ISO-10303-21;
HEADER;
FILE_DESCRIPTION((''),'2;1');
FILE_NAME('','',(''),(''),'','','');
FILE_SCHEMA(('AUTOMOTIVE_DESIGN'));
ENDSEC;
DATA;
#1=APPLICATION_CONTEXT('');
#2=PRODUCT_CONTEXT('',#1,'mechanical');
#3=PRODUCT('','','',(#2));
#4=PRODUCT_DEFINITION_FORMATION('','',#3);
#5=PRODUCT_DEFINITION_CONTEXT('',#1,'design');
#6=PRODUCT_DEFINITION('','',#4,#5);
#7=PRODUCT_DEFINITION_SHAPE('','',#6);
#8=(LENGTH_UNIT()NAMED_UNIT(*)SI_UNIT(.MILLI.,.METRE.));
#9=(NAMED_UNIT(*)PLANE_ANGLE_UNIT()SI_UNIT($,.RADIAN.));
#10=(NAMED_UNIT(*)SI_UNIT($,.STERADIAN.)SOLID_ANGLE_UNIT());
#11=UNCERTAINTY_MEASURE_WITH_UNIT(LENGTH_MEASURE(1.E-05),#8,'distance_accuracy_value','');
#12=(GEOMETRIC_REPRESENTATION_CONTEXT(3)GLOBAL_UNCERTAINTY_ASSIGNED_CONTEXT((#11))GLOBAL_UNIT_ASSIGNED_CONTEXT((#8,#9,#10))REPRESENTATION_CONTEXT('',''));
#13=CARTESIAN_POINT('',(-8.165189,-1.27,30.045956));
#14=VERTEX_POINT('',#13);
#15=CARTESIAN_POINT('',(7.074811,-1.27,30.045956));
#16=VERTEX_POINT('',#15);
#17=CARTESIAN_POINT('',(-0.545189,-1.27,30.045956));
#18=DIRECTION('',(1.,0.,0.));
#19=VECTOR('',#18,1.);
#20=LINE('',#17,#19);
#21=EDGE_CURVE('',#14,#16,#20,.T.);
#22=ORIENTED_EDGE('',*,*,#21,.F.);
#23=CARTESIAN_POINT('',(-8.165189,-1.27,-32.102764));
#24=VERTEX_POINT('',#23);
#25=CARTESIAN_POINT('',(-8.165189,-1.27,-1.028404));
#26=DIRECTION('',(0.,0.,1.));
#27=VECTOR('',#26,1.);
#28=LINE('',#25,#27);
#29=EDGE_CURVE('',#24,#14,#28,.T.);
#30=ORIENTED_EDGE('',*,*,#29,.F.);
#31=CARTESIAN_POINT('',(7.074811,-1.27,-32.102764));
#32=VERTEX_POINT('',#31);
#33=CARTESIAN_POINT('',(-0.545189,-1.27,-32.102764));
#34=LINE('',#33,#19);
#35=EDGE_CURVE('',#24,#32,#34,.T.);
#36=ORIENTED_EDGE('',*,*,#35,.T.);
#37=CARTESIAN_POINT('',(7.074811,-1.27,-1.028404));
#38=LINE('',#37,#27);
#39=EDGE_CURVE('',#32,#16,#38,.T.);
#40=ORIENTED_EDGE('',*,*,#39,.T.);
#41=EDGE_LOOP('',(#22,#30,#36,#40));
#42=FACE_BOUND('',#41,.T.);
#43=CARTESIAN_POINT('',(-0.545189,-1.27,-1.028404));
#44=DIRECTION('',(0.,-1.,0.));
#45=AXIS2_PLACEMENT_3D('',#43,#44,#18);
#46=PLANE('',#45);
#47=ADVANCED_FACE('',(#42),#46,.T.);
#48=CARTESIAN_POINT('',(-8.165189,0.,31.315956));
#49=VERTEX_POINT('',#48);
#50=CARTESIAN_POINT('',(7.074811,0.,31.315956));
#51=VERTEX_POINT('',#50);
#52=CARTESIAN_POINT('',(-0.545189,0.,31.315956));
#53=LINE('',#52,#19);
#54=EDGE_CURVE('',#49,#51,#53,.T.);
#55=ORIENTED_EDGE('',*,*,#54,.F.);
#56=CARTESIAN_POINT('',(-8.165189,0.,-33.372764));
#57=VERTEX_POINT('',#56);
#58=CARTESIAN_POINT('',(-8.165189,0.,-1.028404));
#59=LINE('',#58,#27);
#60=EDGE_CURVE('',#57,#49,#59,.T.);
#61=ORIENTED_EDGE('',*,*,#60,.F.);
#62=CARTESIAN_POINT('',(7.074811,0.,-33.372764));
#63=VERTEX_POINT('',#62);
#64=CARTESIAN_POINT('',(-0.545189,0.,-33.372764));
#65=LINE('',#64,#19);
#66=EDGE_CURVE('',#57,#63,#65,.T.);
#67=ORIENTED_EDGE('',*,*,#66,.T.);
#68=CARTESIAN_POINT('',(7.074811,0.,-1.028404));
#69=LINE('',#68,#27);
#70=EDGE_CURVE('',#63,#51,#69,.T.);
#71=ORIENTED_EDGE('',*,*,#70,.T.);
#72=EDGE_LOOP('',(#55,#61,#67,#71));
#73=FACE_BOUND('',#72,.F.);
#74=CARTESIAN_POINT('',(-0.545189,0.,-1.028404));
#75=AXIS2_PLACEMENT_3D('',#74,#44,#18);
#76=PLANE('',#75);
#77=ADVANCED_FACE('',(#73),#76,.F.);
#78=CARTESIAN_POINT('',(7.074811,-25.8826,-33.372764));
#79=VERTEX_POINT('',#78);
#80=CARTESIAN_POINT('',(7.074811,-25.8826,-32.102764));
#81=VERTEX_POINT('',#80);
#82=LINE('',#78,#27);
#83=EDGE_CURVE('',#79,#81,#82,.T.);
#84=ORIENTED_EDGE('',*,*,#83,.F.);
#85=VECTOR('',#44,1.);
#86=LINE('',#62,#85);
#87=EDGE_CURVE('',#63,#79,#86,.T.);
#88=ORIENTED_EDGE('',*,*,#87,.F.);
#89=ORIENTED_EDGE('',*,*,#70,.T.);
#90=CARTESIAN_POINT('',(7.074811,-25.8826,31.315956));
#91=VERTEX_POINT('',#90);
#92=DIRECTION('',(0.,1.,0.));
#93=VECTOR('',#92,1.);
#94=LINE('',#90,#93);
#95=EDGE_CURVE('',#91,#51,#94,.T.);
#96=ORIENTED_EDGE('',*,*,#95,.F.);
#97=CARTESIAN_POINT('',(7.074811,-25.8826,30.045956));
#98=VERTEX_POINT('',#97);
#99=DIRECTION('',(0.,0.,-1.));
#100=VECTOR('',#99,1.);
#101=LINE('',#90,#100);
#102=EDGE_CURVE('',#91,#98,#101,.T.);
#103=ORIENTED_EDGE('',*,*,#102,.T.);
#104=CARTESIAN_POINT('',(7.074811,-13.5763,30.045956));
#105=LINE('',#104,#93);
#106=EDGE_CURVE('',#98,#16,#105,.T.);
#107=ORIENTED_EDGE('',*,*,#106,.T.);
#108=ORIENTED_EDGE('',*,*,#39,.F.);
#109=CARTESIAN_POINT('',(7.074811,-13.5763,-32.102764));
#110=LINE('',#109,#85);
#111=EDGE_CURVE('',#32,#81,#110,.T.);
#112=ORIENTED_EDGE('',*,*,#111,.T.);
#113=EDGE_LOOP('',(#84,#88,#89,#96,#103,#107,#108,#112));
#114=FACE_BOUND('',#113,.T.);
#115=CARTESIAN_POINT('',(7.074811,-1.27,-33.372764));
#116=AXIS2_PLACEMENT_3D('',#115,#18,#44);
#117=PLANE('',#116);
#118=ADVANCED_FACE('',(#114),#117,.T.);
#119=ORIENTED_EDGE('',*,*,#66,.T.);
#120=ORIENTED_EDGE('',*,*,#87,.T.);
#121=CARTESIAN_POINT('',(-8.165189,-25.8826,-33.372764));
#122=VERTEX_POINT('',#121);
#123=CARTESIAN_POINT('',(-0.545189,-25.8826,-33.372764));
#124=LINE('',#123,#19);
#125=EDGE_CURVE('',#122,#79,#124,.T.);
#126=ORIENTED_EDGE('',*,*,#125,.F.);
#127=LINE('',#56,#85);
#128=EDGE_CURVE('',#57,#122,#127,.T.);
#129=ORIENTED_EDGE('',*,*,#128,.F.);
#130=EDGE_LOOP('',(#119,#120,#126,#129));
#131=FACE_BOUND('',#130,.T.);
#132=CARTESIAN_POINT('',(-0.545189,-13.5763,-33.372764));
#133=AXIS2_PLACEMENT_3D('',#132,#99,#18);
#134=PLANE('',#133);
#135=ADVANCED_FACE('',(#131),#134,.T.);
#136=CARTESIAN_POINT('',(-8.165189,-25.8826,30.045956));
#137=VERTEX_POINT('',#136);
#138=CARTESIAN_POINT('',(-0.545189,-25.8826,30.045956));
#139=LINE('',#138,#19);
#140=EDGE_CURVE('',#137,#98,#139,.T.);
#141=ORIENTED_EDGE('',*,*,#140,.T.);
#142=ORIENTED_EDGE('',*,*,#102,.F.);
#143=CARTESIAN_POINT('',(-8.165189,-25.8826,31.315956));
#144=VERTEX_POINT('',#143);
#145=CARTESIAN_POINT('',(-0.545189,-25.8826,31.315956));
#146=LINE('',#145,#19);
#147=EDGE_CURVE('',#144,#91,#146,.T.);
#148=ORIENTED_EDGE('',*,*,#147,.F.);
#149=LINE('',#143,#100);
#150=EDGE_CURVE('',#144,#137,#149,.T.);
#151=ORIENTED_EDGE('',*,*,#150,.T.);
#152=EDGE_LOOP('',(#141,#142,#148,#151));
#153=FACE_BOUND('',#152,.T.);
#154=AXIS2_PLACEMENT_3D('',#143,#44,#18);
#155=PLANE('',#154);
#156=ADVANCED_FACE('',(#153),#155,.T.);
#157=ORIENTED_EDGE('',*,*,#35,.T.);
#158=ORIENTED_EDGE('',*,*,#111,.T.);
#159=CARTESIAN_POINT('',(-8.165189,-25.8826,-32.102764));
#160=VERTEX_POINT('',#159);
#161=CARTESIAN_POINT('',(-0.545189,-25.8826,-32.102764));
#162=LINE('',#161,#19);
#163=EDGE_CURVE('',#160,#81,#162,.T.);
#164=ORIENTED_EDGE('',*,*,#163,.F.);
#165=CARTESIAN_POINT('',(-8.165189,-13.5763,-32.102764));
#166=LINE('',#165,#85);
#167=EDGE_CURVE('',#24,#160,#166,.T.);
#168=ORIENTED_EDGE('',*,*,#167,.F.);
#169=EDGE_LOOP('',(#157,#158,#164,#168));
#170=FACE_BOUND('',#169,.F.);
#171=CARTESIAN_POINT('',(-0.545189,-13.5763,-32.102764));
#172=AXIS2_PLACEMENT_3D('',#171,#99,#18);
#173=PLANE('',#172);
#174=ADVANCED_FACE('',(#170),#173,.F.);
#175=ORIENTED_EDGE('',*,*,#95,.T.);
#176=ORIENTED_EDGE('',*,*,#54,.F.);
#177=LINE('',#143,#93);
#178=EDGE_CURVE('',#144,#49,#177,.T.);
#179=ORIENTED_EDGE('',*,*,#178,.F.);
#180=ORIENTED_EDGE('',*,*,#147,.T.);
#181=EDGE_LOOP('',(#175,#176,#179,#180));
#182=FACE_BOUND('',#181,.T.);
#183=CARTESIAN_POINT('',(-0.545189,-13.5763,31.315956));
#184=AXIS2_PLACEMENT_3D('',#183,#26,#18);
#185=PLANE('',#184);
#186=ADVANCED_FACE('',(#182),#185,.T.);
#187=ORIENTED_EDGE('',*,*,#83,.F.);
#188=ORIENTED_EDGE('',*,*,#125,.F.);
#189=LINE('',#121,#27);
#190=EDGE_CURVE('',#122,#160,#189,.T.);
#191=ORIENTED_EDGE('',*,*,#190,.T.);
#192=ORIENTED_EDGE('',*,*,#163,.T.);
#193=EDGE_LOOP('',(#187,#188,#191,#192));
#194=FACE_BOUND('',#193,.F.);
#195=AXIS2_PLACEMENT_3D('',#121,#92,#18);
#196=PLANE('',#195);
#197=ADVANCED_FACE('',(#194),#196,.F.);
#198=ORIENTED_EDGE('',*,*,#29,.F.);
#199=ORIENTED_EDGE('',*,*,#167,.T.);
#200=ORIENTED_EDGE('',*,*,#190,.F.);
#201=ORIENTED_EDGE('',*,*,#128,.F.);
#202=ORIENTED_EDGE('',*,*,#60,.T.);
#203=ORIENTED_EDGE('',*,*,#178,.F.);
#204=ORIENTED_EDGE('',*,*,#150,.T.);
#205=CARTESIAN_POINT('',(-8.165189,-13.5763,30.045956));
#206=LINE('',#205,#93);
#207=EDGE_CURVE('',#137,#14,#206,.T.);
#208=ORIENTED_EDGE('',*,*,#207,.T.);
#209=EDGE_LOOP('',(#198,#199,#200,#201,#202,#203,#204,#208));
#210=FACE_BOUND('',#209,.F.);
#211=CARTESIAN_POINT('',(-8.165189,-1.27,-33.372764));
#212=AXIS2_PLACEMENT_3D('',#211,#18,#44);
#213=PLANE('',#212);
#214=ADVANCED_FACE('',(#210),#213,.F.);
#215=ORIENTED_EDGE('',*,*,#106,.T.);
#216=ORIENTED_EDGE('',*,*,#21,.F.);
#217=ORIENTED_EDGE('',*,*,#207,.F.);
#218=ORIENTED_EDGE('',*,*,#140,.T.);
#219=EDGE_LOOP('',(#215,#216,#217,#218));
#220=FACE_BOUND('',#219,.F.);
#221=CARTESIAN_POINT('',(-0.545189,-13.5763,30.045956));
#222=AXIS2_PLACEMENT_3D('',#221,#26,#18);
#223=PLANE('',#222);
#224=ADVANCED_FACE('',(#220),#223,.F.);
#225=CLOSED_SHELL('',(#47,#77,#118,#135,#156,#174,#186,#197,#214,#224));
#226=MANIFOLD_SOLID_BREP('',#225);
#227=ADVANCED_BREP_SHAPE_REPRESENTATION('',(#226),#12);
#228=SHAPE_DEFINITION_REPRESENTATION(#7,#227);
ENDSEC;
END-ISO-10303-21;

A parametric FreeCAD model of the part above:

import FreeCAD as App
import Part
import Sketcher

V = App.Vector
Q = App.Units.Quantity

doc = App.newDocument("Part")
params = doc.addObject("Spreadsheet::Sheet", "Params")
for row, (alias, value) in enumerate([
    ("sketch1_width", "0.6 in"),
    ("pad1_length", "0.05 in"),
    ("sketch2_width", "0.6 in"),
    ("sketch2_height", "0.969 in"),
    ("pad2_length", "0.05 in"),
    ("sketch3_width", "0.6 in"),
    ("sketch3_height", "0.969 in"),
    ("pad3_length", "0.05 in"),
], start=1):
    params.set(f"A{row}", alias)
    params.set(f"B{row}", "=" + value)
    params.setAlias(f"B{row}", alias)

body = doc.addObject("PartDesign::Body", "Body")

sketch1 = body.newObject("Sketcher::SketchObject", "Sketch")
sketch1.AttachmentSupport = (doc.getObject("XZ_Plane"), [""])
sketch1.MapMode = "FlatFace"
sketch1.addGeometry(Part.LineSegment(V(-8.165189, 31.315956, 0), V(-8.165189, -33.372764, 0)), False)
sketch1.addGeometry(Part.LineSegment(V(-8.165189, -33.372764, 0), V(7.074811, -33.372764, 0)), False)
sketch1.addGeometry(Part.LineSegment(V(7.074811, -33.372764, 0), V(7.074811, 31.315956, 0)), False)
sketch1.addGeometry(Part.LineSegment(V(7.074811, 31.315956, 0), V(-8.165189, 31.315956, 0)), False)
sketch1.addConstraint(Sketcher.Constraint("Coincident", 0, 2, 1, 1))
sketch1.addConstraint(Sketcher.Constraint("Coincident", 1, 2, 2, 1))
sketch1.addConstraint(Sketcher.Constraint("Coincident", 2, 2, 3, 1))
sketch1.addConstraint(Sketcher.Constraint("Coincident", 3, 2, 0, 1))
sketch1.addConstraint(Sketcher.Constraint("Vertical", 0))
sketch1.addConstraint(Sketcher.Constraint("Horizontal", 1))
sketch1.addConstraint(Sketcher.Constraint("Vertical", 2))
sketch1.addConstraint(Sketcher.Constraint("Horizontal", 3))
sketch1.addConstraint(Sketcher.Constraint("DistanceX", 1, 1, 1, 2, Q("0.6 in")))
sketch1.addConstraint(Sketcher.Constraint("DistanceY", 0, 2, 0, 1, Q("2.5468 in")))
sketch1.addConstraint(Sketcher.Constraint("DistanceX", 0, 2, -1, 1, Q("8.165189 mm")))
sketch1.addConstraint(Sketcher.Constraint("DistanceY", 0, 2, -1, 1, Q("33.372764 mm")))
sketch1.setExpression("Constraints[8]", "Params.sketch1_width")
pad1 = body.newObject("PartDesign::Pad", "Pad")
pad1.Profile = sketch1
pad1.setExpression("Length", "Params.pad1_length")

sketch2 = body.newObject("Sketcher::SketchObject", "Sketch001")
sketch2.AttachmentSupport = (doc.getObject("XY_Plane"), [""])
sketch2.MapMode = "FlatFace"
sketch2.AttachmentOffset = App.Placement(V(0, 0, 31.315956), App.Rotation())
sketch2.addGeometry(Part.LineSegment(V(-8.165189, -1.27, 0), V(-8.165189, -25.8826, 0)), False)
sketch2.addGeometry(Part.LineSegment(V(-8.165189, -25.8826, 0), V(7.074811, -25.8826, 0)), False)
sketch2.addGeometry(Part.LineSegment(V(7.074811, -25.8826, 0), V(7.074811, -1.27, 0)), False)
sketch2.addGeometry(Part.LineSegment(V(7.074811, -1.27, 0), V(-8.165189, -1.27, 0)), False)
sketch2.addConstraint(Sketcher.Constraint("Coincident", 0, 2, 1, 1))
sketch2.addConstraint(Sketcher.Constraint("Coincident", 1, 2, 2, 1))
sketch2.addConstraint(Sketcher.Constraint("Coincident", 2, 2, 3, 1))
sketch2.addConstraint(Sketcher.Constraint("Coincident", 3, 2, 0, 1))
sketch2.addConstraint(Sketcher.Constraint("Vertical", 0))
sketch2.addConstraint(Sketcher.Constraint("Horizontal", 1))
sketch2.addConstraint(Sketcher.Constraint("Vertical", 2))
sketch2.addConstraint(Sketcher.Constraint("Horizontal", 3))
sketch2.addConstraint(Sketcher.Constraint("DistanceX", 1, 1, 1, 2, Q("0.6 in")))
sketch2.addConstraint(Sketcher.Constraint("DistanceY", 0, 2, 0, 1, Q("0.969 in")))
sketch2.addConstraint(Sketcher.Constraint("DistanceY", 2, 2, -1, 1, Q("0.05 in")))
sketch2.addConstraint(Sketcher.Constraint("DistanceX", 0, 2, -1, 1, Q("8.165189 mm")))
sketch2.setExpression("Constraints[8]", "Params.sketch2_width")
sketch2.setExpression("Constraints[9]", "Params.sketch2_height")
pad2 = body.newObject("PartDesign::Pad", "Pad001")
pad2.Profile = sketch2
pad2.setExpression("Length", "Params.pad2_length")
pad2.Reversed = True

sketch3 = body.newObject("Sketcher::SketchObject", "Sketch002")
sketch3.AttachmentSupport = (doc.getObject("XY_Plane"), [""])
sketch3.MapMode = "FlatFace"
sketch3.AttachmentOffset = App.Placement(V(0, 0, -33.372764), App.Rotation())
sketch3.addGeometry(Part.LineSegment(V(-8.165189, -25.8826, 0), V(-8.165189, -1.27, 0)), False)
sketch3.addGeometry(Part.LineSegment(V(-8.165189, -1.27, 0), V(7.074811, -1.27, 0)), False)
sketch3.addGeometry(Part.LineSegment(V(7.074811, -1.27, 0), V(7.074811, -25.8826, 0)), False)
sketch3.addGeometry(Part.LineSegment(V(7.074811, -25.8826, 0), V(-8.165189, -25.8826, 0)), False)
sketch3.addConstraint(Sketcher.Constraint("Coincident", 0, 2, 1, 1))
sketch3.addConstraint(Sketcher.Constraint("Coincident", 1, 2, 2, 1))
sketch3.addConstraint(Sketcher.Constraint("Coincident", 2, 2, 3, 1))
sketch3.addConstraint(Sketcher.Constraint("Coincident", 3, 2, 0, 1))
sketch3.addConstraint(Sketcher.Constraint("Vertical", 0))
sketch3.addConstraint(Sketcher.Constraint("Horizontal", 1))
sketch3.addConstraint(Sketcher.Constraint("Vertical", 2))
sketch3.addConstraint(Sketcher.Constraint("Horizontal", 3))
sketch3.addConstraint(Sketcher.Constraint("DistanceX", 1, 1, 1, 2, Q("0.6 in")))
sketch3.addConstraint(Sketcher.Constraint("DistanceY", 0, 1, 0, 2, Q("0.969 in")))
sketch3.addConstraint(Sketcher.Constraint("DistanceY", 0, 2, -1, 1, Q("0.05 in")))
sketch3.addConstraint(Sketcher.Constraint("DistanceX", 0, 2, -1, 1, Q("8.165189 mm")))
sketch3.setExpression("Constraints[8]", "Params.sketch3_width")
sketch3.setExpression("Constraints[9]", "Params.sketch3_height")
pad3 = body.newObject("PartDesign::Pad", "Pad002")
pad3.Profile = sketch3
pad3.setExpression("Length", "Params.pad3_length")

doc.recompute()
